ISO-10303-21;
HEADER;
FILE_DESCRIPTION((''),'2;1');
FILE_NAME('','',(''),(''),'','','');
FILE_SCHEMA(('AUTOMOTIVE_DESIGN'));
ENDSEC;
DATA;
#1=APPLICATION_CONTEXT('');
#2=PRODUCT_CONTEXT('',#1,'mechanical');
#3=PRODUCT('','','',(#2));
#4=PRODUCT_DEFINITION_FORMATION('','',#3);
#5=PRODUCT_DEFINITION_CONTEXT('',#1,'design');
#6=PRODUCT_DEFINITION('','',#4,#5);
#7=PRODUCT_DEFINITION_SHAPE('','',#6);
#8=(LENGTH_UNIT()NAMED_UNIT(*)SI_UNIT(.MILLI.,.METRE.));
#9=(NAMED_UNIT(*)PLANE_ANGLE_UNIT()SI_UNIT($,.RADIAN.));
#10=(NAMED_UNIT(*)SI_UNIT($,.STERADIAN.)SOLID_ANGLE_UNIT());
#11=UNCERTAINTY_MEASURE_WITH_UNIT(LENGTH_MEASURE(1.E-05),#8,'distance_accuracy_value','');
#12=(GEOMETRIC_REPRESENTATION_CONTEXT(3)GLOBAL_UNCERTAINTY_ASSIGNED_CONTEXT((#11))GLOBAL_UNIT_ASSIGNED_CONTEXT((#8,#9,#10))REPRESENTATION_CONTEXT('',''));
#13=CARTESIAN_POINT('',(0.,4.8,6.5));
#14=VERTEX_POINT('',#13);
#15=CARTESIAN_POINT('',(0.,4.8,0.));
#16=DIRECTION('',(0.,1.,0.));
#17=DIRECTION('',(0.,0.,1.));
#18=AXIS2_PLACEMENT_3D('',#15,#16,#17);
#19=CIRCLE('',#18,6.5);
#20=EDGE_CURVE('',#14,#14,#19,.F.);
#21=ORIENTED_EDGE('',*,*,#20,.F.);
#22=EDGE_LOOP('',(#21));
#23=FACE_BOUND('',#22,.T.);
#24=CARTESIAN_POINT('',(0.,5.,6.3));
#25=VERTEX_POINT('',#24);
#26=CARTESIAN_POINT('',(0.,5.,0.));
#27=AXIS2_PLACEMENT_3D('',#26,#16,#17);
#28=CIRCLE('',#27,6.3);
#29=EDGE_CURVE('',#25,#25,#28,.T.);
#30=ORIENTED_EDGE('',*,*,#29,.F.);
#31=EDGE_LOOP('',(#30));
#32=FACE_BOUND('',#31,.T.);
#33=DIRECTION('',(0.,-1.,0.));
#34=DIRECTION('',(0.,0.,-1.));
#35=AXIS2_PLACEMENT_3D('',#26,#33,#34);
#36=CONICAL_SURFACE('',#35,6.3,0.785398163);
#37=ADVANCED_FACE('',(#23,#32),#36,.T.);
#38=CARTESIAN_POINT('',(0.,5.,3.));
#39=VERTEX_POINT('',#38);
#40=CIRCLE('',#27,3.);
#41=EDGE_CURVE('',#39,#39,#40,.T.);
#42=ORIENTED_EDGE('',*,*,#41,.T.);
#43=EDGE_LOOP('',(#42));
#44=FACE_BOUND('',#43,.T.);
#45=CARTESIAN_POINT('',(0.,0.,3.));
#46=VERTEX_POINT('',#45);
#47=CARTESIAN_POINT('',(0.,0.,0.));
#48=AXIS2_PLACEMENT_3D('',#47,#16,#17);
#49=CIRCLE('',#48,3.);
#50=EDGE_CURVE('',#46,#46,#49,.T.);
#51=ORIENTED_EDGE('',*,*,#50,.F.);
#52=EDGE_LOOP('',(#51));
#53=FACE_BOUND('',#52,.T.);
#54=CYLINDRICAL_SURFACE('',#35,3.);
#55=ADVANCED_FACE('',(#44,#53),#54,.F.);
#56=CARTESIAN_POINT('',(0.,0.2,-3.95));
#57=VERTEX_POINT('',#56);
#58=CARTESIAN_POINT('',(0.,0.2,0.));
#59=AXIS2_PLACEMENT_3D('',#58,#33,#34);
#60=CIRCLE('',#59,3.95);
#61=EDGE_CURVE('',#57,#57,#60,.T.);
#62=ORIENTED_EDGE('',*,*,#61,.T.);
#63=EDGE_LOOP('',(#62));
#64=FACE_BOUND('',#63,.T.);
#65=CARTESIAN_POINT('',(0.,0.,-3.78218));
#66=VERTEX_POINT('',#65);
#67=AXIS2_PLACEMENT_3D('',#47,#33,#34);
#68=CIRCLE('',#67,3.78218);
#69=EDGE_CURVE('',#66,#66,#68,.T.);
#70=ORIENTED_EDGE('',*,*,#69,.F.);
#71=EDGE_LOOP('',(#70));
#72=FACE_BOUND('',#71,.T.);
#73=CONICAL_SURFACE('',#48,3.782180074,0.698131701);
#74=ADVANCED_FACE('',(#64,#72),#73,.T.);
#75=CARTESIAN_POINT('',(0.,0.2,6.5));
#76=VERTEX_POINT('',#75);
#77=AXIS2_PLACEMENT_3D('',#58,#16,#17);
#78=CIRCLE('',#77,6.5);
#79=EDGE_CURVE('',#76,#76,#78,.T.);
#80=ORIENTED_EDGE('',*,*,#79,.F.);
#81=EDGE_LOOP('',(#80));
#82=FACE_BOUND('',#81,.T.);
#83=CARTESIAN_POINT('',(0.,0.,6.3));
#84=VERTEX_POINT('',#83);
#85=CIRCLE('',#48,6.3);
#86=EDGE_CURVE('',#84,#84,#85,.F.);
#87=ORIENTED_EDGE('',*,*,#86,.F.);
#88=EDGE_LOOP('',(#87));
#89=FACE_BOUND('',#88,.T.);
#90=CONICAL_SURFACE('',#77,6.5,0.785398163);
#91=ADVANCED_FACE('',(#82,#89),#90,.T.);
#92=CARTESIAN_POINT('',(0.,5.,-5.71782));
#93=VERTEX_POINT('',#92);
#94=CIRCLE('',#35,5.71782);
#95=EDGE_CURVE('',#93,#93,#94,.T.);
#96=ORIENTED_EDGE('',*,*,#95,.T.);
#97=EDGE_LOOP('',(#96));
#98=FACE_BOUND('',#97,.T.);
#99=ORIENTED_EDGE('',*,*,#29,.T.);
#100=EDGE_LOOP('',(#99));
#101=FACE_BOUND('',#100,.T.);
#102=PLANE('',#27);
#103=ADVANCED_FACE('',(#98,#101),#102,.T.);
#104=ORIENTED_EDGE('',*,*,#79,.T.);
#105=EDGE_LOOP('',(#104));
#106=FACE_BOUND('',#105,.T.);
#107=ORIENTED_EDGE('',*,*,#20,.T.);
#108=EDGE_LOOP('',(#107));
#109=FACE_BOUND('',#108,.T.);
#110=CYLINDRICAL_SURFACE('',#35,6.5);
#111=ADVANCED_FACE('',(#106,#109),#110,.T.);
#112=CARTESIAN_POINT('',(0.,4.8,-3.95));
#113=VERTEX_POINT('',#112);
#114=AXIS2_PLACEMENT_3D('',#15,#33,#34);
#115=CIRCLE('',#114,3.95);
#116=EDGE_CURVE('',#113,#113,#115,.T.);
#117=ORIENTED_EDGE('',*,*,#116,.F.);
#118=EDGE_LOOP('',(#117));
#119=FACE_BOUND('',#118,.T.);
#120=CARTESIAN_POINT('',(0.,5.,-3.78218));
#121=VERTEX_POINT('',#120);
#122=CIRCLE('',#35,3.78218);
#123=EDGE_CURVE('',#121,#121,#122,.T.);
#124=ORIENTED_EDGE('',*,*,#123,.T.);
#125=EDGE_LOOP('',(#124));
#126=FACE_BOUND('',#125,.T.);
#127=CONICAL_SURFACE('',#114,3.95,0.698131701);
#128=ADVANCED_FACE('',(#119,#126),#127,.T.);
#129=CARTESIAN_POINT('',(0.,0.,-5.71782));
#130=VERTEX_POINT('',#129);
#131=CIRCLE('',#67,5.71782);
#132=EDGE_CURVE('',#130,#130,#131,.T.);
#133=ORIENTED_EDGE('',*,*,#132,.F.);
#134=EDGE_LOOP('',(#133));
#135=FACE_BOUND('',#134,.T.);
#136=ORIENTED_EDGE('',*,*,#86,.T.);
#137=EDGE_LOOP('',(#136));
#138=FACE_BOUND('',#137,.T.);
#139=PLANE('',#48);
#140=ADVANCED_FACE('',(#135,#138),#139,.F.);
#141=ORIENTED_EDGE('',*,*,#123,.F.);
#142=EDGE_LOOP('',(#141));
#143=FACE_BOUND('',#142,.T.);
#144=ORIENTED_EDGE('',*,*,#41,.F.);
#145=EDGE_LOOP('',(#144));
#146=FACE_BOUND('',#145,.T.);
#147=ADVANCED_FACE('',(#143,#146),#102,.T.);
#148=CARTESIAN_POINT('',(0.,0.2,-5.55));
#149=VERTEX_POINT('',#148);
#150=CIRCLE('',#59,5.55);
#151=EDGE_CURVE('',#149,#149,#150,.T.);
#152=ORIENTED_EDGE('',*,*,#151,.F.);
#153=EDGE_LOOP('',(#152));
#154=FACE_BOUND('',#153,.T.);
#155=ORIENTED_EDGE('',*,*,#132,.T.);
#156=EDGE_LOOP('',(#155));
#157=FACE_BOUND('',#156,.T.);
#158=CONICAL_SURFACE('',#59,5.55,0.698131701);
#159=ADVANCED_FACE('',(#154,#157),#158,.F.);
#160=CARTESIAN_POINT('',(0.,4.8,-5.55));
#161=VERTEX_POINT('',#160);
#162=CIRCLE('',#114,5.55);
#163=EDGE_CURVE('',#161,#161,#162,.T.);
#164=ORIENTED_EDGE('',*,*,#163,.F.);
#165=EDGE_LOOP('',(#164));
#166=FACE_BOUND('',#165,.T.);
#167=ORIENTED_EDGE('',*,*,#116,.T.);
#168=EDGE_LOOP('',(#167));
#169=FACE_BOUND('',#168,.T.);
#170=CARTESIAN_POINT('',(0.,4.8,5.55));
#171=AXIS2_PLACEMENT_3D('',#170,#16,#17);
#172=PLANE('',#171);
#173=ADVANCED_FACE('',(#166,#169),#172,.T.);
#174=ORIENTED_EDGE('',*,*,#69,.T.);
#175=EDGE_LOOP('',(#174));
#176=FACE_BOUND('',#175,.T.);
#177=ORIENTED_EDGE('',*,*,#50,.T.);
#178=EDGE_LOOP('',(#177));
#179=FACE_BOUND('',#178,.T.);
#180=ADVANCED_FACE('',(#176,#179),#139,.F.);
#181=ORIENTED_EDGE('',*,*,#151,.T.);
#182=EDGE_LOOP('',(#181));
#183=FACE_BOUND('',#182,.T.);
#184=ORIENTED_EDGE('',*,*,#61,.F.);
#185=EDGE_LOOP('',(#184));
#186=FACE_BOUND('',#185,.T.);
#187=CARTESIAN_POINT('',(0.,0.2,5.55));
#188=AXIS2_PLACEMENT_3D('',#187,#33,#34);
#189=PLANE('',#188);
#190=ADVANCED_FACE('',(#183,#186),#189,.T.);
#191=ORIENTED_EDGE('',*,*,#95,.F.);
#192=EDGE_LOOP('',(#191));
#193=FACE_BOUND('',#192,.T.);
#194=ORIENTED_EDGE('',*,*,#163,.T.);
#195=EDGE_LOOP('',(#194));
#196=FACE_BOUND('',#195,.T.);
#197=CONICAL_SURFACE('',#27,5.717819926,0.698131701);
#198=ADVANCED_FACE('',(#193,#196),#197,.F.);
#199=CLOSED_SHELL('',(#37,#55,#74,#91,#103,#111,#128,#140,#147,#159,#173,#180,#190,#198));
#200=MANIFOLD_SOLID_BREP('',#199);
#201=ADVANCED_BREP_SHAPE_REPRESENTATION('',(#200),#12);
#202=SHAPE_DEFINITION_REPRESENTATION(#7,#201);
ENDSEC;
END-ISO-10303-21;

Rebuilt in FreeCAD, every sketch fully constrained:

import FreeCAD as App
import Part
import Sketcher
Q = App.Units.Quantity


def edges_at(feature, points):
    """Names of the edges that pass closest to the given points."""
    edges = feature.Shape.Edges
    near = lambda p: min(range(len(edges)), key=lambda i: edges[i].distToShape(Part.Vertex(*p))[0])
    return sorted({f"Edge{near(p) + 1}" for p in points})

doc = App.newDocument("Part")
body = doc.addObject("PartDesign::Body", "Body")

# Sketch on XZ plane
sketch1 = doc.addObject("Sketcher::SketchObject", "Sketch")
body.addObject(sketch1)
sketch1.AttachmentSupport = (doc.XZ_Plane, [""])
sketch1.MapMode = "FlatFace"
sketch1.addGeometry([
    Part.Circle(App.Vector(0, 0, 0), App.Vector(0, 0, 1), 6.5),
    Part.Circle(App.Vector(0, 0, 0), App.Vector(0, 0, 1), 3),
], False)
sketch1.addConstraint([
    Sketcher.Constraint("Coincident", 0, 3, -1, 1),
    Sketcher.Constraint("Coincident", 1, 3, -1, 1),
    Sketcher.Constraint("Diameter", 0, Q("13 mm")),
    Sketcher.Constraint("Diameter", 1, Q("6 mm")),
])
pad1 = doc.addObject("PartDesign::Pad", "Pad")
body.addObject(pad1)
pad1.Profile = sketch1
pad1.Length = 5
pad1.Reversed = True

# Sketch on YZ plane
sketch2 = doc.addObject("Sketcher::SketchObject", "Sketch001")
body.addObject(sketch2)
sketch2.AttachmentSupport = (doc.YZ_Plane, [""])
sketch2.MapMode = "FlatFace"
sketch2.addGeometry([
    Part.LineSegment(App.Vector(5, 5.71782, 0), App.Vector(4.8, 5.55, 0)),  # 0
    Part.LineSegment(App.Vector(4.8, 5.55, 0), App.Vector(4.8, 3.95, 0)),  # 1
    Part.LineSegment(App.Vector(4.8, 3.95, 0), App.Vector(5, 3.78218, 0)),  # 2
    Part.LineSegment(App.Vector(5, 3.78218, 0), App.Vector(5, 5.71782, 0)),  # 3
    Part.LineSegment(App.Vector(0, 3.78218, 0), App.Vector(0.2, 3.95, 0)),  # 4
    Part.LineSegment(App.Vector(0.2, 3.95, 0), App.Vector(0.2, 5.55, 0)),  # 5
    Part.LineSegment(App.Vector(0.2, 5.55, 0), App.Vector(0, 5.71782, 0)),  # 6
    Part.LineSegment(App.Vector(0, 5.71782, 0), App.Vector(0, 3.78218, 0)),  # 7
], False)
sketch2.addConstraint([
    Sketcher.Constraint("Coincident", 0, 2, 1, 1),
    Sketcher.Constraint("Coincident", 1, 2, 2, 1),
    Sketcher.Constraint("Coincident", 2, 2, 3, 1),
    Sketcher.Constraint("Coincident", 3, 2, 0, 1),
    Sketcher.Constraint("Coincident", 4, 2, 5, 1),
    Sketcher.Constraint("Coincident", 5, 2, 6, 1),
    Sketcher.Constraint("Coincident", 6, 2, 7, 1),
    Sketcher.Constraint("Coincident", 7, 2, 4, 1),
    Sketcher.Constraint("Vertical", 1),
    Sketcher.Constraint("Vertical", 3),
    Sketcher.Constraint("Vertical", 5),
    Sketcher.Constraint("Vertical", 7),
    Sketcher.Constraint("PointOnObject", 6, 2, -2),
    Sketcher.Constraint("Parallel", 0, 4),
    Sketcher.Constraint("Parallel", 2, 6),
    Sketcher.Constraint("Horizontal", 1, 2, 4, 2),
    Sketcher.Constraint("Horizontal", 0, 2, 5, 2),
    Sketcher.Constraint("Horizontal", 3, 2, 6, 2),
    Sketcher.Constraint("Horizontal", 2, 2, 7, 2),
    Sketcher.Constraint("Angle", 0, Q("-140 deg")),
    Sketcher.Constraint("DistanceY", 1, 2, 1, 1, Q("1.6 mm")),
    Sketcher.Constraint("DistanceX", -1, 1, 2, 2, Q("5 mm")),
    Sketcher.Constraint("DistanceX", -1, 1, 0, 2, Q("4.8 mm")),
    Sketcher.Constraint("DistanceY", -1, 1, 0, 2, Q("5.55 mm")),
])
groove = doc.addObject("PartDesign::Groove", "Groove")
body.addObject(groove)
groove.Profile = sketch2
groove.ReferenceAxis = (sketch2, ["H_Axis"])
groove.Angle = 360
doc.recompute()

chamfer = doc.addObject("PartDesign::Chamfer", "Chamfer")
body.addObject(chamfer)
chamfer.Base = (groove, edges_at(groove, [(0, 0, -6.5), (0, 5, -6.5)]))
chamfer.Size = 0.2

doc.recompute()
